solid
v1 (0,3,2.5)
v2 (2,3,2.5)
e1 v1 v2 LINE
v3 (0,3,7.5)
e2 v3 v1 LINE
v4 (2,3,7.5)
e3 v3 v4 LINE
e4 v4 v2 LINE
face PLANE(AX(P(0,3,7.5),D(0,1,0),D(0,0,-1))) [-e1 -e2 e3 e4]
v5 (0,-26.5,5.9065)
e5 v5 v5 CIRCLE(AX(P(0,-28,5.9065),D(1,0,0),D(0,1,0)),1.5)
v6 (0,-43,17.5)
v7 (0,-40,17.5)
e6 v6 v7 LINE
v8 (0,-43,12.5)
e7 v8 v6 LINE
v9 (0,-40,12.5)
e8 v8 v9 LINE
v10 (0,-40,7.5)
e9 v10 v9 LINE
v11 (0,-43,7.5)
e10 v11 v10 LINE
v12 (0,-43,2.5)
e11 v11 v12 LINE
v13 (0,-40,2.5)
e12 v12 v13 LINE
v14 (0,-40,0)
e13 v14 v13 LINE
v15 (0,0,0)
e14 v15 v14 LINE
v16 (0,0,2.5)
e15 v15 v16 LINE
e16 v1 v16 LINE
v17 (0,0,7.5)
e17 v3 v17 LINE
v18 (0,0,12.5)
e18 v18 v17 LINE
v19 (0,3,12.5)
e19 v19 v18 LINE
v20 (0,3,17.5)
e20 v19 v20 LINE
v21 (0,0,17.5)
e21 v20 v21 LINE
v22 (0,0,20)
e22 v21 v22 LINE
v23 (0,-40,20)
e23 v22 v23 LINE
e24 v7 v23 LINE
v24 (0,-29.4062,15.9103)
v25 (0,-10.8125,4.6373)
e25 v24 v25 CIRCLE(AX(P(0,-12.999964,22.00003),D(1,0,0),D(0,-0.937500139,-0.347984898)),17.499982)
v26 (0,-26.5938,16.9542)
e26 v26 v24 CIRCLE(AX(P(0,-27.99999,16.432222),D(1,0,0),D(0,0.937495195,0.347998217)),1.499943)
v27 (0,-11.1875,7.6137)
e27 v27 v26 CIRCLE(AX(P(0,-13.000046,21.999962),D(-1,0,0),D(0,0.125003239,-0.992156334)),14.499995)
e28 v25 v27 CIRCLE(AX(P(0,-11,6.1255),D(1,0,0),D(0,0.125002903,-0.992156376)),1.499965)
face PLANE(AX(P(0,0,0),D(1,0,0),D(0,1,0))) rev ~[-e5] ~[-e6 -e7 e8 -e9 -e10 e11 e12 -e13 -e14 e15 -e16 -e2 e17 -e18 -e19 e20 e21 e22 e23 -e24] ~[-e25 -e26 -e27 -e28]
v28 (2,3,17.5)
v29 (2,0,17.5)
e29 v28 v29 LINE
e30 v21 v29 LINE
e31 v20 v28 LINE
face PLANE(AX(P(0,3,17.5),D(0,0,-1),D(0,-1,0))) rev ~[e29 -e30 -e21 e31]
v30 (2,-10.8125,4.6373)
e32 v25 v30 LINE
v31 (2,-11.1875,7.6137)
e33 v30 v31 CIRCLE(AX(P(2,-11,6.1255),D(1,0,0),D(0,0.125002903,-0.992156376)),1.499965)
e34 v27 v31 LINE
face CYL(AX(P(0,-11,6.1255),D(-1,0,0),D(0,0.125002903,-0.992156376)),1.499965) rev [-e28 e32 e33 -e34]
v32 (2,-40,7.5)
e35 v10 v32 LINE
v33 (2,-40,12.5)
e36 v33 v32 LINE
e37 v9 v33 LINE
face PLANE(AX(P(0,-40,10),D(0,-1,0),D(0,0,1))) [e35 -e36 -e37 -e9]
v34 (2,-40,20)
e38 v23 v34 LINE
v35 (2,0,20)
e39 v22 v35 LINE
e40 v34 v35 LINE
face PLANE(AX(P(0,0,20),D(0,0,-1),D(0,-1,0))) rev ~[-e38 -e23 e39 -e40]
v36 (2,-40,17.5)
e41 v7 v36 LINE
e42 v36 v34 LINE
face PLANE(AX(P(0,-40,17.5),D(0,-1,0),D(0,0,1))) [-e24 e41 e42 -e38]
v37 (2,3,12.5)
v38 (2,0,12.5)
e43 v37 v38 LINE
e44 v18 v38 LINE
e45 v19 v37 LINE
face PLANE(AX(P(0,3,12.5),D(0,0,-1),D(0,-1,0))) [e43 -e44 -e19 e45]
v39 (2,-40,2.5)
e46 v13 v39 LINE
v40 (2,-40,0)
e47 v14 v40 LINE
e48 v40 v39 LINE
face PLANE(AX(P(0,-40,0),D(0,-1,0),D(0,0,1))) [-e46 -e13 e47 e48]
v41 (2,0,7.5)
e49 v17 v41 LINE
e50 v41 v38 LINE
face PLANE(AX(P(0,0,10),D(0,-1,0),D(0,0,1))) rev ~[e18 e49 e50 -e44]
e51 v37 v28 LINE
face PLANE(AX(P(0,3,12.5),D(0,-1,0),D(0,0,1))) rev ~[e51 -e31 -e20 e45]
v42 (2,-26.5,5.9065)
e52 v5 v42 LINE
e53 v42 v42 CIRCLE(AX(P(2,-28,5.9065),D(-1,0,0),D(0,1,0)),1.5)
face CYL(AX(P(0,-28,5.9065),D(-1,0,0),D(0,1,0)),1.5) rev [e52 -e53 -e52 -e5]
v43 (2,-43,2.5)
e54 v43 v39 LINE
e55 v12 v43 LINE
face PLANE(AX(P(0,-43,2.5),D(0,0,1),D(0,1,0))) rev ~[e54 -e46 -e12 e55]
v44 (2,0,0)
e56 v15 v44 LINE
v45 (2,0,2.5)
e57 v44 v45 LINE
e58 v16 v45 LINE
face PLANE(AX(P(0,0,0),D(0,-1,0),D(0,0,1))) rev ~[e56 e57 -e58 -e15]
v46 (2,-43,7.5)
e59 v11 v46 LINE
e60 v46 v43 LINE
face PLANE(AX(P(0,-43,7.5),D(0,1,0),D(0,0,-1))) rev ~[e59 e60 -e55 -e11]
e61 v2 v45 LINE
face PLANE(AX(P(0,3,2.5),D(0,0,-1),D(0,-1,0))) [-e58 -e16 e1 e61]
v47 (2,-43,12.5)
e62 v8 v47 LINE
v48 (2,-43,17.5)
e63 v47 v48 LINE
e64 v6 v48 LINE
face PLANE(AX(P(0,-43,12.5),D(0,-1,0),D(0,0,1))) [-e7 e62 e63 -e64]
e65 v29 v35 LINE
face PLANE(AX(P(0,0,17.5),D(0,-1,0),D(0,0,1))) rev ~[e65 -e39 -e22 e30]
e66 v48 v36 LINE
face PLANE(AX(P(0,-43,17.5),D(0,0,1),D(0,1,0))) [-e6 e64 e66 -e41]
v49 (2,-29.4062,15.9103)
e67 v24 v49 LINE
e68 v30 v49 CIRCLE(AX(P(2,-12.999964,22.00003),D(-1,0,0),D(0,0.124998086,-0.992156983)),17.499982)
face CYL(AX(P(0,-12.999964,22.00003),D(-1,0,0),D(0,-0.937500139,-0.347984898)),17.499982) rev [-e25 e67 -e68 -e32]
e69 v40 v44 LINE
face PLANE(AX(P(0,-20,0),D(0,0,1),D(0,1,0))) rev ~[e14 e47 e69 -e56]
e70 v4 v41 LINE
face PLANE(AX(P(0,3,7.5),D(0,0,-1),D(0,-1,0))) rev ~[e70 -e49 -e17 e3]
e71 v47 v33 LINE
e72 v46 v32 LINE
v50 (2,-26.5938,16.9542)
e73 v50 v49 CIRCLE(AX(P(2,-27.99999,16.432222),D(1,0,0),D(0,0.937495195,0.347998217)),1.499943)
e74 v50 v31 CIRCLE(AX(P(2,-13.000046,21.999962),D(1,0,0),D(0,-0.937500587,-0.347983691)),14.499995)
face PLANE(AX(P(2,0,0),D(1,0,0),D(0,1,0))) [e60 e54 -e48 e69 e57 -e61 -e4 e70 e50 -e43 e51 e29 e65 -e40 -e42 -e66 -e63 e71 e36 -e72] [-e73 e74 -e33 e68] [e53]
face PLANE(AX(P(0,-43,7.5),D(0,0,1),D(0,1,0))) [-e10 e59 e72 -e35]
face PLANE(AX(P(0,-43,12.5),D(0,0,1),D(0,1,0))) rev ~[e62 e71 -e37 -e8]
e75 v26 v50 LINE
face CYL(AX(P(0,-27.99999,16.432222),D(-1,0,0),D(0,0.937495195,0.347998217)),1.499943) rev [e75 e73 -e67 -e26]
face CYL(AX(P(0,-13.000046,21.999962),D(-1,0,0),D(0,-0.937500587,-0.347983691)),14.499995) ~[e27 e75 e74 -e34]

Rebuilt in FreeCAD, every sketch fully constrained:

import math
import FreeCAD as App
import Part
import Sketcher
from FreeCAD import Vector
Q = App.Units.Quantity

doc = App.newDocument("Part")
params = doc.addObject("Spreadsheet::Sheet", "Params")
for row, (alias, value) in enumerate([
    ("sketch1_diameter", "3 mm"),
    ("sketch1_radius", "17.5 mm"),
    ("sketch1_width", "40 mm"),
    ("sketch1_width2", "3 mm"),
    ("sketch1_height", "5 mm"),
    ("pad1_length", "2 mm"),
], start=1):
    params.set(f"A{row}", alias)
    params.set(f"B{row}", "=" + value)
    params.setAlias(f"B{row}", alias)

body = doc.addObject("PartDesign::Body", "Body")

sketch1 = doc.addObject("Sketcher::SketchObject", "Sketch")
body.addObject(sketch1)
sketch1.AttachmentSupport = (doc.YZ_Plane, [""])
sketch1.MapMode = "FlatFace"
sketch1.addGeometry(Part.LineSegment(Vector(0, 17.5, 0), Vector(0, 20, 0)), False)
sketch1.addGeometry(Part.LineSegment(Vector(0, 20, 0), Vector(-40, 20, 0)), False)
sketch1.addGeometry(Part.LineSegment(Vector(-40, 20, 0), Vector(-40, 17.5, 0)), False)
sketch1.addGeometry(Part.LineSegment(Vector(-40, 17.5, 0), Vector(-43, 17.5, 0)), False)
sketch1.addGeometry(Part.LineSegment(Vector(-43, 17.5, 0), Vector(-43, 12.5, 0)), False)
sketch1.addGeometry(Part.LineSegment(Vector(-43, 12.5, 0), Vector(-40, 12.5, 0)), False)
sketch1.addGeometry(Part.LineSegment(Vector(-40, 12.5, 0), Vector(-40, 7.5, 0)), False)
sketch1.addGeometry(Part.LineSegment(Vector(-40, 7.5, 0), Vector(-43, 7.5, 0)), False)
sketch1.addGeometry(Part.LineSegment(Vector(-43, 7.5, 0), Vector(-43, 2.5, 0)), False)
sketch1.addGeometry(Part.LineSegment(Vector(-43, 2.5, 0), Vector(-40, 2.5, 0)), False)
sketch1.addGeometry(Part.LineSegment(Vector(-40, 2.5, 0), Vector(-40, 0, 0)), False)
sketch1.addGeometry(Part.LineSegment(Vector(-40, 0, 0), Vector(0, 0, 0)), False)
sketch1.addGeometry(Part.LineSegment(Vector(0, 0, 0), Vector(0, 2.5, 0)), False)
sketch1.addGeometry(Part.LineSegment(Vector(0, 2.5, 0), Vector(3, 2.5, 0)), False)
sketch1.addGeometry(Part.LineSegment(Vector(3, 2.5, 0), Vector(3, 7.5, 0)), False)
sketch1.addGeometry(Part.LineSegment(Vector(3, 7.5, 0), Vector(0, 7.5, 0)), False)
sketch1.addGeometry(Part.LineSegment(Vector(0, 7.5, 0), Vector(0, 12.5, 0)), False)
sketch1.addGeometry(Part.LineSegment(Vector(0, 12.5, 0), Vector(3, 12.5, 0)), False)
sketch1.addGeometry(Part.LineSegment(Vector(3, 12.5, 0), Vector(3, 17.5, 0)), False)
sketch1.addGeometry(Part.LineSegment(Vector(3, 17.5, 0), Vector(0, 17.5, 0)), False)
sketch1.addGeometry(Part.ArcOfCircle(Part.Circle(Vector(-13, 22, 0), Vector(0, 0, 1), 17.499938), math.radians(-159.635938), math.radians(-82.819227)), False)
sketch1.addGeometry(Part.ArcOfCircle(Part.Circle(Vector(-28, 16.4322, 0), Vector(0, 0, 1), 1.499961), math.radians(20.365591), math.radians(200.362009)), False)
sketch1.addGeometry(Part.ArcOfCircle(Part.Circle(Vector(-13, 22, 0), Vector(0, 0, 1), 14.500052), math.radians(-159.635884), math.radians(-82.819258)), False)
sketch1.addGeometry(Part.ArcOfCircle(Part.Circle(Vector(-11, 6.1255, 0), Vector(0, 0, 1), 1.499965), math.radians(-82.819077), math.radians(97.180923)), False)
sketch1.addGeometry(Part.Circle(Vector(-28, 5.9065, 0), Vector(0, 0, 1), 1.5), False)
sketch1.addConstraint(Sketcher.Constraint("Coincident", 0, 2, 1, 1))
sketch1.addConstraint(Sketcher.Constraint("Coincident", 1, 2, 2, 1))
sketch1.addConstraint(Sketcher.Constraint("Coincident", 2, 2, 3, 1))
sketch1.addConstraint(Sketcher.Constraint("Coincident", 3, 2, 4, 1))
sketch1.addConstraint(Sketcher.Constraint("Coincident", 4, 2, 5, 1))
sketch1.addConstraint(Sketcher.Constraint("Coincident", 5, 2, 6, 1))
sketch1.addConstraint(Sketcher.Constraint("Coincident", 6, 2, 7, 1))
sketch1.addConstraint(Sketcher.Constraint("Coincident", 7, 2, 8, 1))
sketch1.addConstraint(Sketcher.Constraint("Coincident", 8, 2, 9, 1))
sketch1.addConstraint(Sketcher.Constraint("Coincident", 9, 2, 10, 1))
sketch1.addConstraint(Sketcher.Constraint("Coincident", 10, 2, 11, 1))
sketch1.addConstraint(Sketcher.Constraint("Coincident", 11, 2, 12, 1))
sketch1.addConstraint(Sketcher.Constraint("Coincident", 12, 2, 13, 1))
sketch1.addConstraint(Sketcher.Constraint("Coincident", 13, 2, 14, 1))
sketch1.addConstraint(Sketcher.Constraint("Coincident", 14, 2, 15, 1))
sketch1.addConstraint(Sketcher.Constraint("Coincident", 15, 2, 16, 1))
sketch1.addConstraint(Sketcher.Constraint("Coincident", 16, 2, 17, 1))
sketch1.addConstraint(Sketcher.Constraint("Coincident", 17, 2, 18, 1))
sketch1.addConstraint(Sketcher.Constraint("Coincident", 18, 2, 19, 1))
sketch1.addConstraint(Sketcher.Constraint("Coincident", 19, 2, 0, 1))
sketch1.addConstraint(Sketcher.Constraint("Tangent", 20, 1, 21, 2))
sketch1.addConstraint(Sketcher.Constraint("Tangent", 21, 1, 22, 1))
sketch1.addConstraint(Sketcher.Constraint("Tangent", 22, 2, 23, 2))
sketch1.addConstraint(Sketcher.Constraint("Tangent", 23, 1, 20, 2))
sketch1.addConstraint(Sketcher.Constraint("Vertical", 0))
sketch1.addConstraint(Sketcher.Constraint("Horizontal", 1))
sketch1.addConstraint(Sketcher.Constraint("Vertical", 2))
sketch1.addConstraint(Sketcher.Constraint("Horizontal", 3))
sketch1.addConstraint(Sketcher.Constraint("Vertical", 4))
sketch1.addConstraint(Sketcher.Constraint("Horizontal", 5))
sketch1.addConstraint(Sketcher.Constraint("Vertical", 6))
sketch1.addConstraint(Sketcher.Constraint("Horizontal", 7))
sketch1.addConstraint(Sketcher.Constraint("Vertical", 8))
sketch1.addConstraint(Sketcher.Constraint("Horizontal", 9))
sketch1.addConstraint(Sketcher.Constraint("Vertical", 10))
sketch1.addConstraint(Sketcher.Constraint("Horizontal", 11))
sketch1.addConstraint(Sketcher.Constraint("Vertical", 12))
sketch1.addConstraint(Sketcher.Constraint("Horizontal", 13))
sketch1.addConstraint(Sketcher.Constraint("Vertical", 14))
sketch1.addConstraint(Sketcher.Constraint("Horizontal", 15))
sketch1.addConstraint(Sketcher.Constraint("Vertical", 16))
sketch1.addConstraint(Sketcher.Constraint("Horizontal", 17))
sketch1.addConstraint(Sketcher.Constraint("Vertical", 18))
sketch1.addConstraint(Sketcher.Constraint("Horizontal", 19))
sketch1.addConstraint(Sketcher.Constraint("Coincident", 11, 2, -1, 1))
sketch1.addConstraint(Sketcher.Constraint("Coincident", 22, 3, 20, 3))
sketch1.addConstraint(Sketcher.Constraint("Equal", 23, 24))
sketch1.addConstraint(Sketcher.Constraint("PointOnObject", 0, 2, -2))
sketch1.addConstraint(Sketcher.Constraint("PointOnObject", 15, 2, -2))
sketch1.addConstraint(Sketcher.Constraint("Horizontal", 9, 2, 12, 2))
sketch1.addConstraint(Sketcher.Constraint("Horizontal", 7, 2, 14, 2))
sketch1.addConstraint(Sketcher.Constraint("Horizontal", 5, 2, 16, 2))
sketch1.addConstraint(Sketcher.Constraint("Horizontal", 3, 2, 18, 2))
sketch1.addConstraint(Sketcher.Constraint("Vertical", 21, 3, 24, 3))
sketch1.addConstraint(Sketcher.Constraint("Vertical", 2, 2, 5, 2))
sketch1.addConstraint(Sketcher.Constraint("Vertical", 4, 2, 7, 2))
sketch1.addConstraint(Sketcher.Constraint("Vertical", 6, 2, 9, 2))
sketch1.addConstraint(Sketcher.Constraint("Vertical", 14, 2, 17, 2))
sketch1.addConstraint(Sketcher.Constraint("Equal", 9, 13))
sketch1.addConstraint(Sketcher.Constraint("Equal", 4, 6))
sketch1.addConstraint(Sketcher.Constraint("Equal", 6, 8))
sketch1.addConstraint(Sketcher.Constraint("Equal", 2, 10))
sketch1.addConstraint(Sketcher.Constraint("Diameter", 24, Q("3 mm")))
sketch1.addConstraint(Sketcher.Constraint("Radius", 20, Q("17.5 mm")))
sketch1.addConstraint(Sketcher.Constraint("DistanceX", 1, 2, 1, 1, Q("40 mm")))
sketch1.addConstraint(Sketcher.Constraint("DistanceX", 3, 2, 3, 1, Q("3 mm")))
sketch1.addConstraint(Sketcher.Constraint("DistanceY", 4, 2, 4, 1, Q("5 mm")))
sketch1.addConstraint(Sketcher.Constraint("DistanceY", 0, 1, 0, 2, Q("2.5 mm")))
sketch1.addConstraint(Sketcher.Constraint("DistanceX", 20, 3, -1, 1, Q("13 mm")))
sketch1.addConstraint(Sketcher.Constraint("DistanceY", -1, 1, 20, 3, Q("22 mm")))
sketch1.addConstraint(Sketcher.Constraint("DistanceX", 21, 3, 20, 3, Q("15 mm")))
sketch1.addConstraint(Sketcher.Constraint("DistanceX", 21, 3, 23, 3, Q("17 mm")))
sketch1.addConstraint(Sketcher.Constraint("DistanceY", 24, 3, 23, 3, Q("0.219 mm")))
sketch1.setExpression("Constraints[62]", "Params.sketch1_diameter")
sketch1.setExpression("Constraints[63]", "Params.sketch1_radius")
sketch1.setExpression("Constraints[64]", "Params.sketch1_width")
sketch1.setExpression("Constraints[65]", "Params.sketch1_width2")
sketch1.setExpression("Constraints[66]", "Params.sketch1_height")
pad1 = doc.addObject("PartDesign::Pad", "Pad")
body.addObject(pad1)
pad1.Profile = sketch1
pad1.setExpression("Length", "Params.pad1_length")

doc.recompute()
